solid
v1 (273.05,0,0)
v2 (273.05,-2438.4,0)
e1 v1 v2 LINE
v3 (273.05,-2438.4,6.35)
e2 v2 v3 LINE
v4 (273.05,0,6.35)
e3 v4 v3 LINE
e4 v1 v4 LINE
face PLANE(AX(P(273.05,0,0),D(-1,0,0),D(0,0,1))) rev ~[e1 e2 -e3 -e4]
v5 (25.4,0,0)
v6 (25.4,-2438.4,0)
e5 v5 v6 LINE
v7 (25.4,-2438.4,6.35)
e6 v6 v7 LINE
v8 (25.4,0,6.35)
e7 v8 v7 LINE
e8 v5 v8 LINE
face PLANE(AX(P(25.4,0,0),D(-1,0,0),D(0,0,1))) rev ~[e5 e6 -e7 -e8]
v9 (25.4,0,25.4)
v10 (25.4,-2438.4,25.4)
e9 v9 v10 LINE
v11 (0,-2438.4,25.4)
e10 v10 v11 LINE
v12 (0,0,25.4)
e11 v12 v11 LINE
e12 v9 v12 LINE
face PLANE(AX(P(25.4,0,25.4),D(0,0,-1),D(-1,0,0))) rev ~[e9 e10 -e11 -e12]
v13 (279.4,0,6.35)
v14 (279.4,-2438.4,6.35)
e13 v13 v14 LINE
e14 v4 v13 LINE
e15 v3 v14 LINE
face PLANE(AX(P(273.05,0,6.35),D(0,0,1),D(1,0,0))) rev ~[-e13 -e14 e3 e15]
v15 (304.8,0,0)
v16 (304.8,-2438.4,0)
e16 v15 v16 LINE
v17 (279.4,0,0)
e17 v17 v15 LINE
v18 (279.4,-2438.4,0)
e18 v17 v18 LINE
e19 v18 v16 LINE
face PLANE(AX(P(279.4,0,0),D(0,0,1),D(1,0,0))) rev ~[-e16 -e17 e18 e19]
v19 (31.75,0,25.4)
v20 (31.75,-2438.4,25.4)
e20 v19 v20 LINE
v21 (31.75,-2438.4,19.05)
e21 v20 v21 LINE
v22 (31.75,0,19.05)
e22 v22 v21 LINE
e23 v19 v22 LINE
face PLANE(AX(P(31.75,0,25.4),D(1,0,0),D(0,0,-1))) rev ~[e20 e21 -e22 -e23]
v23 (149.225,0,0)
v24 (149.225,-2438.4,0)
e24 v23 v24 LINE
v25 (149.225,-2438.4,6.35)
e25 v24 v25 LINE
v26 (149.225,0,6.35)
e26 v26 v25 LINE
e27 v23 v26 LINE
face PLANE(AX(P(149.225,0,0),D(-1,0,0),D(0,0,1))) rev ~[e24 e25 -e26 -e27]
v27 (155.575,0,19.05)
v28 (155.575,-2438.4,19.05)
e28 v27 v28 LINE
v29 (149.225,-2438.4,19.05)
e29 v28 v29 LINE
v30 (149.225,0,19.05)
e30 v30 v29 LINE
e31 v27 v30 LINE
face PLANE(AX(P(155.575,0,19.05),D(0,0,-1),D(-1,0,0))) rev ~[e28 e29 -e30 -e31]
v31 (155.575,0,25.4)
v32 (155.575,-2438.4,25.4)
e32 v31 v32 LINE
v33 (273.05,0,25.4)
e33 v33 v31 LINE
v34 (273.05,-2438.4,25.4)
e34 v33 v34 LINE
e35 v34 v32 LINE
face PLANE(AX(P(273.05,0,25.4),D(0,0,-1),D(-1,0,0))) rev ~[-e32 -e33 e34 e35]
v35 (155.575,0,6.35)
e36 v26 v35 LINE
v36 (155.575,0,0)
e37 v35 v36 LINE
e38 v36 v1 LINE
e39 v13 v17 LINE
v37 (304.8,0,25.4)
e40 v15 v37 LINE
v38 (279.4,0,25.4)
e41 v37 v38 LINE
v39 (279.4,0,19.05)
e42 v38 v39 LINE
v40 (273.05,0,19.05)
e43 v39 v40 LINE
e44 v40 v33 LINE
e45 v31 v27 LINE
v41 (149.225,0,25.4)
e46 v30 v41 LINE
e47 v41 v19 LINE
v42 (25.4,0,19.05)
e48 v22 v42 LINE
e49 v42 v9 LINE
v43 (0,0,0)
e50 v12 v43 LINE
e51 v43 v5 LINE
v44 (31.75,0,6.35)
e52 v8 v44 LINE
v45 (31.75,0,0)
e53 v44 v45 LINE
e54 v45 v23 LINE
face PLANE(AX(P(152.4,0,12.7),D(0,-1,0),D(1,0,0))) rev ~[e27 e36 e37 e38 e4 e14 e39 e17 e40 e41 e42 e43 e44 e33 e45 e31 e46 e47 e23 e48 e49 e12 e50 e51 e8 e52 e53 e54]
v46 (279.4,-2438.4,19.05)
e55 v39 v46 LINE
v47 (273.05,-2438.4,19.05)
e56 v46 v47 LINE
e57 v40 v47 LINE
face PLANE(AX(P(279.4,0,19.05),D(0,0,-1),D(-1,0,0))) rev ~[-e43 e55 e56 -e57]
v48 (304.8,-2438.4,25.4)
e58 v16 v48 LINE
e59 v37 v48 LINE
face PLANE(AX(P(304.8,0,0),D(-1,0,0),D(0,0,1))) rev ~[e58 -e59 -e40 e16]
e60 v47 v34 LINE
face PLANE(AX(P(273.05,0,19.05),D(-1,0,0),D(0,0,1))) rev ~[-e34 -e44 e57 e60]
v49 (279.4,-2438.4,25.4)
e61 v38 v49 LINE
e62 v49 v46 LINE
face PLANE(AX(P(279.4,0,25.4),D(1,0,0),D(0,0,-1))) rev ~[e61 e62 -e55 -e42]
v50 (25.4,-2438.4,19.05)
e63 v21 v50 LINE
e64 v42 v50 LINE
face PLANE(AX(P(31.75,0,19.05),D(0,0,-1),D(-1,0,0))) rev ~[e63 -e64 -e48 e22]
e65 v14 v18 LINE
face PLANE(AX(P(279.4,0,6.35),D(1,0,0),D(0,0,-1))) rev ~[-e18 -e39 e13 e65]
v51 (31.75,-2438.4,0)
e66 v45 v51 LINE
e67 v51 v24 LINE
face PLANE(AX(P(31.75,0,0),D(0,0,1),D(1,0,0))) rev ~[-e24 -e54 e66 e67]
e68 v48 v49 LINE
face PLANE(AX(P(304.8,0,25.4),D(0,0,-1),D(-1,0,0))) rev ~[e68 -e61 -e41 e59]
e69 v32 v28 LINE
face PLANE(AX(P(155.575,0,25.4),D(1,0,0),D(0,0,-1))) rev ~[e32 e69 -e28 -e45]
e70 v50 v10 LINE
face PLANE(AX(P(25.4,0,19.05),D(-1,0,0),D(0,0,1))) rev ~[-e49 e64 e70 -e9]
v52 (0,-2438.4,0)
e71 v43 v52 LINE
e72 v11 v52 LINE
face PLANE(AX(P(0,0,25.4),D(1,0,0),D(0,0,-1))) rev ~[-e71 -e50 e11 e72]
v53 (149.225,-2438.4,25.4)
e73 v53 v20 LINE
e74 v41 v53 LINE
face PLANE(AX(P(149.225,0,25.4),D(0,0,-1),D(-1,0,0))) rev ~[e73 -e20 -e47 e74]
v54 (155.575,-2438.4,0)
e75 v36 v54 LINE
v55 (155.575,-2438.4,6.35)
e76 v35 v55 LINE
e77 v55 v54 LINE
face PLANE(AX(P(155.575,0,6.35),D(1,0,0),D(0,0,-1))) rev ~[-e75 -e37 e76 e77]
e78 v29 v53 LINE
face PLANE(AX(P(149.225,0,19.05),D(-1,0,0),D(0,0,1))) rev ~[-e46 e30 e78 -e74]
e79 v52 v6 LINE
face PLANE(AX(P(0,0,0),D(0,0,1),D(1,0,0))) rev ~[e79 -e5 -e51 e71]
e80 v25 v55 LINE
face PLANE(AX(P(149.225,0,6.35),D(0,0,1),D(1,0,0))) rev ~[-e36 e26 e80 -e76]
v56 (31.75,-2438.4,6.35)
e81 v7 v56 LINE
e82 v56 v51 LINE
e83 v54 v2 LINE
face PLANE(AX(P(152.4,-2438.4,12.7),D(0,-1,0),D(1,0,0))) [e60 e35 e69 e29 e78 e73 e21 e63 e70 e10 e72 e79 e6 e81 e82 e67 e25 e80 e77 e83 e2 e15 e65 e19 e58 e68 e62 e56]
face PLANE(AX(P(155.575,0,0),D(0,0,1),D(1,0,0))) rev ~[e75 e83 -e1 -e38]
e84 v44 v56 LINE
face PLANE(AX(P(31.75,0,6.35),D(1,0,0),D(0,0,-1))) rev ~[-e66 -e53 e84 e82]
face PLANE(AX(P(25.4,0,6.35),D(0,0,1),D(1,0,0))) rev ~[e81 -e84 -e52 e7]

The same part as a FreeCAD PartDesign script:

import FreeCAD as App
import Part
import Sketcher
Q = App.Units.Quantity

doc = App.newDocument("Part")
body = doc.addObject("PartDesign::Body", "Body")

# Sketch on XZ plane
sketch1 = doc.addObject("Sketcher::SketchObject", "Sketch")
body.addObject(sketch1)
sketch1.AttachmentSupport = (doc.XZ_Plane, [""])
sketch1.MapMode = "FlatFace"
sketch1.addGeometry(Part.LineSegment(App.Vector(0, 25, 0), App.Vector(0, 0, 0)), False)
sketch1.addGeometry(Part.LineSegment(App.Vector(0, 0, 0), App.Vector(25, 0, 0)), False)
sketch1.addGeometry(Part.LineSegment(App.Vector(25, 0, 0), App.Vector(25, 6, 0)), False)
sketch1.addGeometry(Part.LineSegment(App.Vector(25, 6, 0), App.Vector(32, 6, 0)), False)
sketch1.addGeometry(Part.LineSegment(App.Vector(32, 6, 0), App.Vector(32, 0, 0)), False)
sketch1.addGeometry(Part.LineSegment(App.Vector(32, 0, 0), App.Vector(149, 0, 0)), False)
sketch1.addGeometry(Part.LineSegment(App.Vector(149, 0, 0), App.Vector(149, 6, 0)), False)
sketch1.addGeometry(Part.LineSegment(App.Vector(149, 6, 0), App.Vector(156, 6, 0)), False)
sketch1.addGeometry(Part.LineSegment(App.Vector(156, 6, 0), App.Vector(156, 0, 0)), False)
sketch1.addGeometry(Part.LineSegment(App.Vector(156, 0, 0), App.Vector(273, 0, 0)), False)
sketch1.addGeometry(Part.LineSegment(App.Vector(273, 0, 0), App.Vector(273, 6, 0)), False)
sketch1.addGeometry(Part.LineSegment(App.Vector(273, 6, 0), App.Vector(279, 6, 0)), False)
sketch1.addGeometry(Part.LineSegment(App.Vector(279, 6, 0), App.Vector(279, 0, 0)), False)
sketch1.addGeometry(Part.LineSegment(App.Vector(279, 0, 0), App.Vector(305, 0, 0)), False)
sketch1.addGeometry(Part.LineSegment(App.Vector(305, 0, 0), App.Vector(305, 25, 0)), False)
sketch1.addGeometry(Part.LineSegment(App.Vector(305, 25, 0), App.Vector(279, 25, 0)), False)
sketch1.addGeometry(Part.LineSegment(App.Vector(279, 25, 0), App.Vector(279, 19, 0)), False)
sketch1.addGeometry(Part.LineSegment(App.Vector(279, 19, 0), App.Vector(273, 19, 0)), False)
sketch1.addGeometry(Part.LineSegment(App.Vector(273, 19, 0), App.Vector(273, 25, 0)), False)
sketch1.addGeometry(Part.LineSegment(App.Vector(273, 25, 0), App.Vector(156, 25, 0)), False)
sketch1.addGeometry(Part.LineSegment(App.Vector(156, 25, 0), App.Vector(156, 19, 0)), False)
sketch1.addGeometry(Part.LineSegment(App.Vector(156, 19, 0), App.Vector(149, 19, 0)), False)
sketch1.addGeometry(Part.LineSegment(App.Vector(149, 19, 0), App.Vector(149, 25, 0)), False)
sketch1.addGeometry(Part.LineSegment(App.Vector(149, 25, 0), App.Vector(32, 25, 0)), False)
sketch1.addGeometry(Part.LineSegment(App.Vector(32, 25, 0), App.Vector(32, 19, 0)), False)
sketch1.addGeometry(Part.LineSegment(App.Vector(32, 19, 0), App.Vector(25, 19, 0)), False)
sketch1.addGeometry(Part.LineSegment(App.Vector(25, 19, 0), App.Vector(25, 25, 0)), False)
sketch1.addGeometry(Part.LineSegment(App.Vector(25, 25, 0), App.Vector(0, 25, 0)), False)
sketch1.addConstraint(Sketcher.Constraint("Coincident", 0, 2, 1, 1))
sketch1.addConstraint(Sketcher.Constraint("Coincident", 1, 2, 2, 1))
sketch1.addConstraint(Sketcher.Constraint("Coincident", 2, 2, 3, 1))
sketch1.addConstraint(Sketcher.Constraint("Coincident", 3, 2, 4, 1))
sketch1.addConstraint(Sketcher.Constraint("Coincident", 4, 2, 5, 1))
sketch1.addConstraint(Sketcher.Constraint("Coincident", 5, 2, 6, 1))
sketch1.addConstraint(Sketcher.Constraint("Coincident", 6, 2, 7, 1))
sketch1.addConstraint(Sketcher.Constraint("Coincident", 7, 2, 8, 1))
sketch1.addConstraint(Sketcher.Constraint("Coincident", 8, 2, 9, 1))
sketch1.addConstraint(Sketcher.Constraint("Coincident", 9, 2, 10, 1))
sketch1.addConstraint(Sketcher.Constraint("Coincident", 10, 2, 11, 1))
sketch1.addConstraint(Sketcher.Constraint("Coincident", 11, 2, 12, 1))
sketch1.addConstraint(Sketcher.Constraint("Coincident", 12, 2, 13, 1))
sketch1.addConstraint(Sketcher.Constraint("Coincident", 13, 2, 14, 1))
sketch1.addConstraint(Sketcher.Constraint("Coincident", 14, 2, 15, 1))
sketch1.addConstraint(Sketcher.Constraint("Coincident", 15, 2, 16, 1))
sketch1.addConstraint(Sketcher.Constraint("Coincident", 16, 2, 17, 1))
sketch1.addConstraint(Sketcher.Constraint("Coincident", 17, 2, 18, 1))
sketch1.addConstraint(Sketcher.Constraint("Coincident", 18, 2, 19, 1))
sketch1.addConstraint(Sketcher.Constraint("Coincident", 19, 2, 20, 1))
sketch1.addConstraint(Sketcher.Constraint("Coincident", 20, 2, 21, 1))
sketch1.addConstraint(Sketcher.Constraint("Coincident", 21, 2, 22, 1))
sketch1.addConstraint(Sketcher.Constraint("Coincident", 22, 2, 23, 1))
sketch1.addConstraint(Sketcher.Constraint("Coincident", 23, 2, 24, 1))
sketch1.addConstraint(Sketcher.Constraint("Coincident", 24, 2, 25, 1))
sketch1.addConstraint(Sketcher.Constraint("Coincident", 25, 2, 26, 1))
sketch1.addConstraint(Sketcher.Constraint("Coincident", 26, 2, 27, 1))
sketch1.addConstraint(Sketcher.Constraint("Coincident", 27, 2, 0, 1))
sketch1.addConstraint(Sketcher.Constraint("Vertical", 0))
sketch1.addConstraint(Sketcher.Constraint("Horizontal", 1))
sketch1.addConstraint(Sketcher.Constraint("Vertical", 2))
sketch1.addConstraint(Sketcher.Constraint("Horizontal", 3))
sketch1.addConstraint(Sketcher.Constraint("Vertical", 4))
sketch1.addConstraint(Sketcher.Constraint("Horizontal", 5))
sketch1.addConstraint(Sketcher.Constraint("Vertical", 6))
sketch1.addConstraint(Sketcher.Constraint("Horizontal", 7))
sketch1.addConstraint(Sketcher.Constraint("Vertical", 8))
sketch1.addConstraint(Sketcher.Constraint("Horizontal", 9))
sketch1.addConstraint(Sketcher.Constraint("Vertical", 10))
sketch1.addConstraint(Sketcher.Constraint("Horizontal", 11))
sketch1.addConstraint(Sketcher.Constraint("Vertical", 12))
sketch1.addConstraint(Sketcher.Constraint("Horizontal", 13))
sketch1.addConstraint(Sketcher.Constraint("Vertical", 14))
sketch1.addConstraint(Sketcher.Constraint("Horizontal", 15))
sketch1.addConstraint(Sketcher.Constraint("Vertical", 16))
sketch1.addConstraint(Sketcher.Constraint("Horizontal", 17))
sketch1.addConstraint(Sketcher.Constraint("Vertical", 18))
sketch1.addConstraint(Sketcher.Constraint("Horizontal", 19))
sketch1.addConstraint(Sketcher.Constraint("Vertical", 20))
sketch1.addConstraint(Sketcher.Constraint("Horizontal", 21))
sketch1.addConstraint(Sketcher.Constraint("Vertical", 22))
sketch1.addConstraint(Sketcher.Constraint("Horizontal", 23))
sketch1.addConstraint(Sketcher.Constraint("Vertical", 24))
sketch1.addConstraint(Sketcher.Constraint("Horizontal", 25))
sketch1.addConstraint(Sketcher.Constraint("Vertical", 26))
sketch1.addConstraint(Sketcher.Constraint("Horizontal", 27))
sketch1.addConstraint(Sketcher.Constraint("Coincident", 0, 2, -1, 1))
sketch1.addConstraint(Sketcher.Constraint("PointOnObject", 4, 2, -1))
sketch1.addConstraint(Sketcher.Constraint("PointOnObject", 8, 2, -1))
sketch1.addConstraint(Sketcher.Constraint("PointOnObject", 12, 2, -1))
sketch1.addConstraint(Sketcher.Constraint("Horizontal", 3, 2, 6, 2))
sketch1.addConstraint(Sketcher.Constraint("Horizontal", 7, 2, 10, 2))
sketch1.addConstraint(Sketcher.Constraint("Horizontal", 15, 2, 18, 2))
sketch1.addConstraint(Sketcher.Constraint("Horizontal", 17, 2, 20, 2))
sketch1.addConstraint(Sketcher.Constraint("Horizontal", 19, 2, 22, 2))
sketch1.addConstraint(Sketcher.Constraint("Horizontal", 21, 2, 24, 2))
sketch1.addConstraint(Sketcher.Constraint("Horizontal", 23, 2, 26, 2))
sketch1.addConstraint(Sketcher.Constraint("Vertical", 12, 2, 15, 2))
sketch1.addConstraint(Sketcher.Constraint("Vertical", 10, 2, 17, 2))
sketch1.addConstraint(Sketcher.Constraint("Vertical", 8, 2, 19, 2))
sketch1.addConstraint(Sketcher.Constraint("Vertical", 6, 2, 21, 2))
sketch1.addConstraint(Sketcher.Constraint("Vertical", 4, 2, 23, 2))
sketch1.addConstraint(Sketcher.Constraint("Vertical", 2, 2, 25, 2))
sketch1.addConstraint(Sketcher.Constraint("Equal", 3, 7))
sketch1.addConstraint(Sketcher.Constraint("Equal", 5, 9))
sketch1.addConstraint(Sketcher.Constraint("Equal", 7, 11))
sketch1.addConstraint(Sketcher.Constraint("Equal", 1, 13))
sketch1.addConstraint(Sketcher.Constraint("Equal", 27, 0))
sketch1.addConstraint(Sketcher.Constraint("Equal", 25, 2))
sketch1.addConstraint(Sketcher.Constraint("Equal", 12, 16))
sketch1.addConstraint(Sketcher.Constraint("DistanceX", 1, 1, 1, 2, Q("1 in")))
sketch1.addConstraint(Sketcher.Constraint("DistanceX", -1, 1, 11, 2, Q("11 in")))
sketch1.addConstraint(Sketcher.Constraint("DistanceX", 3, 1, 3, 2, Q("0.25 in")))
pad1 = doc.addObject("PartDesign::Pad", "Pad")
body.addObject(pad1)
pad1.Profile = sketch1
pad1.Length = Q("96 in")

doc.recompute()
